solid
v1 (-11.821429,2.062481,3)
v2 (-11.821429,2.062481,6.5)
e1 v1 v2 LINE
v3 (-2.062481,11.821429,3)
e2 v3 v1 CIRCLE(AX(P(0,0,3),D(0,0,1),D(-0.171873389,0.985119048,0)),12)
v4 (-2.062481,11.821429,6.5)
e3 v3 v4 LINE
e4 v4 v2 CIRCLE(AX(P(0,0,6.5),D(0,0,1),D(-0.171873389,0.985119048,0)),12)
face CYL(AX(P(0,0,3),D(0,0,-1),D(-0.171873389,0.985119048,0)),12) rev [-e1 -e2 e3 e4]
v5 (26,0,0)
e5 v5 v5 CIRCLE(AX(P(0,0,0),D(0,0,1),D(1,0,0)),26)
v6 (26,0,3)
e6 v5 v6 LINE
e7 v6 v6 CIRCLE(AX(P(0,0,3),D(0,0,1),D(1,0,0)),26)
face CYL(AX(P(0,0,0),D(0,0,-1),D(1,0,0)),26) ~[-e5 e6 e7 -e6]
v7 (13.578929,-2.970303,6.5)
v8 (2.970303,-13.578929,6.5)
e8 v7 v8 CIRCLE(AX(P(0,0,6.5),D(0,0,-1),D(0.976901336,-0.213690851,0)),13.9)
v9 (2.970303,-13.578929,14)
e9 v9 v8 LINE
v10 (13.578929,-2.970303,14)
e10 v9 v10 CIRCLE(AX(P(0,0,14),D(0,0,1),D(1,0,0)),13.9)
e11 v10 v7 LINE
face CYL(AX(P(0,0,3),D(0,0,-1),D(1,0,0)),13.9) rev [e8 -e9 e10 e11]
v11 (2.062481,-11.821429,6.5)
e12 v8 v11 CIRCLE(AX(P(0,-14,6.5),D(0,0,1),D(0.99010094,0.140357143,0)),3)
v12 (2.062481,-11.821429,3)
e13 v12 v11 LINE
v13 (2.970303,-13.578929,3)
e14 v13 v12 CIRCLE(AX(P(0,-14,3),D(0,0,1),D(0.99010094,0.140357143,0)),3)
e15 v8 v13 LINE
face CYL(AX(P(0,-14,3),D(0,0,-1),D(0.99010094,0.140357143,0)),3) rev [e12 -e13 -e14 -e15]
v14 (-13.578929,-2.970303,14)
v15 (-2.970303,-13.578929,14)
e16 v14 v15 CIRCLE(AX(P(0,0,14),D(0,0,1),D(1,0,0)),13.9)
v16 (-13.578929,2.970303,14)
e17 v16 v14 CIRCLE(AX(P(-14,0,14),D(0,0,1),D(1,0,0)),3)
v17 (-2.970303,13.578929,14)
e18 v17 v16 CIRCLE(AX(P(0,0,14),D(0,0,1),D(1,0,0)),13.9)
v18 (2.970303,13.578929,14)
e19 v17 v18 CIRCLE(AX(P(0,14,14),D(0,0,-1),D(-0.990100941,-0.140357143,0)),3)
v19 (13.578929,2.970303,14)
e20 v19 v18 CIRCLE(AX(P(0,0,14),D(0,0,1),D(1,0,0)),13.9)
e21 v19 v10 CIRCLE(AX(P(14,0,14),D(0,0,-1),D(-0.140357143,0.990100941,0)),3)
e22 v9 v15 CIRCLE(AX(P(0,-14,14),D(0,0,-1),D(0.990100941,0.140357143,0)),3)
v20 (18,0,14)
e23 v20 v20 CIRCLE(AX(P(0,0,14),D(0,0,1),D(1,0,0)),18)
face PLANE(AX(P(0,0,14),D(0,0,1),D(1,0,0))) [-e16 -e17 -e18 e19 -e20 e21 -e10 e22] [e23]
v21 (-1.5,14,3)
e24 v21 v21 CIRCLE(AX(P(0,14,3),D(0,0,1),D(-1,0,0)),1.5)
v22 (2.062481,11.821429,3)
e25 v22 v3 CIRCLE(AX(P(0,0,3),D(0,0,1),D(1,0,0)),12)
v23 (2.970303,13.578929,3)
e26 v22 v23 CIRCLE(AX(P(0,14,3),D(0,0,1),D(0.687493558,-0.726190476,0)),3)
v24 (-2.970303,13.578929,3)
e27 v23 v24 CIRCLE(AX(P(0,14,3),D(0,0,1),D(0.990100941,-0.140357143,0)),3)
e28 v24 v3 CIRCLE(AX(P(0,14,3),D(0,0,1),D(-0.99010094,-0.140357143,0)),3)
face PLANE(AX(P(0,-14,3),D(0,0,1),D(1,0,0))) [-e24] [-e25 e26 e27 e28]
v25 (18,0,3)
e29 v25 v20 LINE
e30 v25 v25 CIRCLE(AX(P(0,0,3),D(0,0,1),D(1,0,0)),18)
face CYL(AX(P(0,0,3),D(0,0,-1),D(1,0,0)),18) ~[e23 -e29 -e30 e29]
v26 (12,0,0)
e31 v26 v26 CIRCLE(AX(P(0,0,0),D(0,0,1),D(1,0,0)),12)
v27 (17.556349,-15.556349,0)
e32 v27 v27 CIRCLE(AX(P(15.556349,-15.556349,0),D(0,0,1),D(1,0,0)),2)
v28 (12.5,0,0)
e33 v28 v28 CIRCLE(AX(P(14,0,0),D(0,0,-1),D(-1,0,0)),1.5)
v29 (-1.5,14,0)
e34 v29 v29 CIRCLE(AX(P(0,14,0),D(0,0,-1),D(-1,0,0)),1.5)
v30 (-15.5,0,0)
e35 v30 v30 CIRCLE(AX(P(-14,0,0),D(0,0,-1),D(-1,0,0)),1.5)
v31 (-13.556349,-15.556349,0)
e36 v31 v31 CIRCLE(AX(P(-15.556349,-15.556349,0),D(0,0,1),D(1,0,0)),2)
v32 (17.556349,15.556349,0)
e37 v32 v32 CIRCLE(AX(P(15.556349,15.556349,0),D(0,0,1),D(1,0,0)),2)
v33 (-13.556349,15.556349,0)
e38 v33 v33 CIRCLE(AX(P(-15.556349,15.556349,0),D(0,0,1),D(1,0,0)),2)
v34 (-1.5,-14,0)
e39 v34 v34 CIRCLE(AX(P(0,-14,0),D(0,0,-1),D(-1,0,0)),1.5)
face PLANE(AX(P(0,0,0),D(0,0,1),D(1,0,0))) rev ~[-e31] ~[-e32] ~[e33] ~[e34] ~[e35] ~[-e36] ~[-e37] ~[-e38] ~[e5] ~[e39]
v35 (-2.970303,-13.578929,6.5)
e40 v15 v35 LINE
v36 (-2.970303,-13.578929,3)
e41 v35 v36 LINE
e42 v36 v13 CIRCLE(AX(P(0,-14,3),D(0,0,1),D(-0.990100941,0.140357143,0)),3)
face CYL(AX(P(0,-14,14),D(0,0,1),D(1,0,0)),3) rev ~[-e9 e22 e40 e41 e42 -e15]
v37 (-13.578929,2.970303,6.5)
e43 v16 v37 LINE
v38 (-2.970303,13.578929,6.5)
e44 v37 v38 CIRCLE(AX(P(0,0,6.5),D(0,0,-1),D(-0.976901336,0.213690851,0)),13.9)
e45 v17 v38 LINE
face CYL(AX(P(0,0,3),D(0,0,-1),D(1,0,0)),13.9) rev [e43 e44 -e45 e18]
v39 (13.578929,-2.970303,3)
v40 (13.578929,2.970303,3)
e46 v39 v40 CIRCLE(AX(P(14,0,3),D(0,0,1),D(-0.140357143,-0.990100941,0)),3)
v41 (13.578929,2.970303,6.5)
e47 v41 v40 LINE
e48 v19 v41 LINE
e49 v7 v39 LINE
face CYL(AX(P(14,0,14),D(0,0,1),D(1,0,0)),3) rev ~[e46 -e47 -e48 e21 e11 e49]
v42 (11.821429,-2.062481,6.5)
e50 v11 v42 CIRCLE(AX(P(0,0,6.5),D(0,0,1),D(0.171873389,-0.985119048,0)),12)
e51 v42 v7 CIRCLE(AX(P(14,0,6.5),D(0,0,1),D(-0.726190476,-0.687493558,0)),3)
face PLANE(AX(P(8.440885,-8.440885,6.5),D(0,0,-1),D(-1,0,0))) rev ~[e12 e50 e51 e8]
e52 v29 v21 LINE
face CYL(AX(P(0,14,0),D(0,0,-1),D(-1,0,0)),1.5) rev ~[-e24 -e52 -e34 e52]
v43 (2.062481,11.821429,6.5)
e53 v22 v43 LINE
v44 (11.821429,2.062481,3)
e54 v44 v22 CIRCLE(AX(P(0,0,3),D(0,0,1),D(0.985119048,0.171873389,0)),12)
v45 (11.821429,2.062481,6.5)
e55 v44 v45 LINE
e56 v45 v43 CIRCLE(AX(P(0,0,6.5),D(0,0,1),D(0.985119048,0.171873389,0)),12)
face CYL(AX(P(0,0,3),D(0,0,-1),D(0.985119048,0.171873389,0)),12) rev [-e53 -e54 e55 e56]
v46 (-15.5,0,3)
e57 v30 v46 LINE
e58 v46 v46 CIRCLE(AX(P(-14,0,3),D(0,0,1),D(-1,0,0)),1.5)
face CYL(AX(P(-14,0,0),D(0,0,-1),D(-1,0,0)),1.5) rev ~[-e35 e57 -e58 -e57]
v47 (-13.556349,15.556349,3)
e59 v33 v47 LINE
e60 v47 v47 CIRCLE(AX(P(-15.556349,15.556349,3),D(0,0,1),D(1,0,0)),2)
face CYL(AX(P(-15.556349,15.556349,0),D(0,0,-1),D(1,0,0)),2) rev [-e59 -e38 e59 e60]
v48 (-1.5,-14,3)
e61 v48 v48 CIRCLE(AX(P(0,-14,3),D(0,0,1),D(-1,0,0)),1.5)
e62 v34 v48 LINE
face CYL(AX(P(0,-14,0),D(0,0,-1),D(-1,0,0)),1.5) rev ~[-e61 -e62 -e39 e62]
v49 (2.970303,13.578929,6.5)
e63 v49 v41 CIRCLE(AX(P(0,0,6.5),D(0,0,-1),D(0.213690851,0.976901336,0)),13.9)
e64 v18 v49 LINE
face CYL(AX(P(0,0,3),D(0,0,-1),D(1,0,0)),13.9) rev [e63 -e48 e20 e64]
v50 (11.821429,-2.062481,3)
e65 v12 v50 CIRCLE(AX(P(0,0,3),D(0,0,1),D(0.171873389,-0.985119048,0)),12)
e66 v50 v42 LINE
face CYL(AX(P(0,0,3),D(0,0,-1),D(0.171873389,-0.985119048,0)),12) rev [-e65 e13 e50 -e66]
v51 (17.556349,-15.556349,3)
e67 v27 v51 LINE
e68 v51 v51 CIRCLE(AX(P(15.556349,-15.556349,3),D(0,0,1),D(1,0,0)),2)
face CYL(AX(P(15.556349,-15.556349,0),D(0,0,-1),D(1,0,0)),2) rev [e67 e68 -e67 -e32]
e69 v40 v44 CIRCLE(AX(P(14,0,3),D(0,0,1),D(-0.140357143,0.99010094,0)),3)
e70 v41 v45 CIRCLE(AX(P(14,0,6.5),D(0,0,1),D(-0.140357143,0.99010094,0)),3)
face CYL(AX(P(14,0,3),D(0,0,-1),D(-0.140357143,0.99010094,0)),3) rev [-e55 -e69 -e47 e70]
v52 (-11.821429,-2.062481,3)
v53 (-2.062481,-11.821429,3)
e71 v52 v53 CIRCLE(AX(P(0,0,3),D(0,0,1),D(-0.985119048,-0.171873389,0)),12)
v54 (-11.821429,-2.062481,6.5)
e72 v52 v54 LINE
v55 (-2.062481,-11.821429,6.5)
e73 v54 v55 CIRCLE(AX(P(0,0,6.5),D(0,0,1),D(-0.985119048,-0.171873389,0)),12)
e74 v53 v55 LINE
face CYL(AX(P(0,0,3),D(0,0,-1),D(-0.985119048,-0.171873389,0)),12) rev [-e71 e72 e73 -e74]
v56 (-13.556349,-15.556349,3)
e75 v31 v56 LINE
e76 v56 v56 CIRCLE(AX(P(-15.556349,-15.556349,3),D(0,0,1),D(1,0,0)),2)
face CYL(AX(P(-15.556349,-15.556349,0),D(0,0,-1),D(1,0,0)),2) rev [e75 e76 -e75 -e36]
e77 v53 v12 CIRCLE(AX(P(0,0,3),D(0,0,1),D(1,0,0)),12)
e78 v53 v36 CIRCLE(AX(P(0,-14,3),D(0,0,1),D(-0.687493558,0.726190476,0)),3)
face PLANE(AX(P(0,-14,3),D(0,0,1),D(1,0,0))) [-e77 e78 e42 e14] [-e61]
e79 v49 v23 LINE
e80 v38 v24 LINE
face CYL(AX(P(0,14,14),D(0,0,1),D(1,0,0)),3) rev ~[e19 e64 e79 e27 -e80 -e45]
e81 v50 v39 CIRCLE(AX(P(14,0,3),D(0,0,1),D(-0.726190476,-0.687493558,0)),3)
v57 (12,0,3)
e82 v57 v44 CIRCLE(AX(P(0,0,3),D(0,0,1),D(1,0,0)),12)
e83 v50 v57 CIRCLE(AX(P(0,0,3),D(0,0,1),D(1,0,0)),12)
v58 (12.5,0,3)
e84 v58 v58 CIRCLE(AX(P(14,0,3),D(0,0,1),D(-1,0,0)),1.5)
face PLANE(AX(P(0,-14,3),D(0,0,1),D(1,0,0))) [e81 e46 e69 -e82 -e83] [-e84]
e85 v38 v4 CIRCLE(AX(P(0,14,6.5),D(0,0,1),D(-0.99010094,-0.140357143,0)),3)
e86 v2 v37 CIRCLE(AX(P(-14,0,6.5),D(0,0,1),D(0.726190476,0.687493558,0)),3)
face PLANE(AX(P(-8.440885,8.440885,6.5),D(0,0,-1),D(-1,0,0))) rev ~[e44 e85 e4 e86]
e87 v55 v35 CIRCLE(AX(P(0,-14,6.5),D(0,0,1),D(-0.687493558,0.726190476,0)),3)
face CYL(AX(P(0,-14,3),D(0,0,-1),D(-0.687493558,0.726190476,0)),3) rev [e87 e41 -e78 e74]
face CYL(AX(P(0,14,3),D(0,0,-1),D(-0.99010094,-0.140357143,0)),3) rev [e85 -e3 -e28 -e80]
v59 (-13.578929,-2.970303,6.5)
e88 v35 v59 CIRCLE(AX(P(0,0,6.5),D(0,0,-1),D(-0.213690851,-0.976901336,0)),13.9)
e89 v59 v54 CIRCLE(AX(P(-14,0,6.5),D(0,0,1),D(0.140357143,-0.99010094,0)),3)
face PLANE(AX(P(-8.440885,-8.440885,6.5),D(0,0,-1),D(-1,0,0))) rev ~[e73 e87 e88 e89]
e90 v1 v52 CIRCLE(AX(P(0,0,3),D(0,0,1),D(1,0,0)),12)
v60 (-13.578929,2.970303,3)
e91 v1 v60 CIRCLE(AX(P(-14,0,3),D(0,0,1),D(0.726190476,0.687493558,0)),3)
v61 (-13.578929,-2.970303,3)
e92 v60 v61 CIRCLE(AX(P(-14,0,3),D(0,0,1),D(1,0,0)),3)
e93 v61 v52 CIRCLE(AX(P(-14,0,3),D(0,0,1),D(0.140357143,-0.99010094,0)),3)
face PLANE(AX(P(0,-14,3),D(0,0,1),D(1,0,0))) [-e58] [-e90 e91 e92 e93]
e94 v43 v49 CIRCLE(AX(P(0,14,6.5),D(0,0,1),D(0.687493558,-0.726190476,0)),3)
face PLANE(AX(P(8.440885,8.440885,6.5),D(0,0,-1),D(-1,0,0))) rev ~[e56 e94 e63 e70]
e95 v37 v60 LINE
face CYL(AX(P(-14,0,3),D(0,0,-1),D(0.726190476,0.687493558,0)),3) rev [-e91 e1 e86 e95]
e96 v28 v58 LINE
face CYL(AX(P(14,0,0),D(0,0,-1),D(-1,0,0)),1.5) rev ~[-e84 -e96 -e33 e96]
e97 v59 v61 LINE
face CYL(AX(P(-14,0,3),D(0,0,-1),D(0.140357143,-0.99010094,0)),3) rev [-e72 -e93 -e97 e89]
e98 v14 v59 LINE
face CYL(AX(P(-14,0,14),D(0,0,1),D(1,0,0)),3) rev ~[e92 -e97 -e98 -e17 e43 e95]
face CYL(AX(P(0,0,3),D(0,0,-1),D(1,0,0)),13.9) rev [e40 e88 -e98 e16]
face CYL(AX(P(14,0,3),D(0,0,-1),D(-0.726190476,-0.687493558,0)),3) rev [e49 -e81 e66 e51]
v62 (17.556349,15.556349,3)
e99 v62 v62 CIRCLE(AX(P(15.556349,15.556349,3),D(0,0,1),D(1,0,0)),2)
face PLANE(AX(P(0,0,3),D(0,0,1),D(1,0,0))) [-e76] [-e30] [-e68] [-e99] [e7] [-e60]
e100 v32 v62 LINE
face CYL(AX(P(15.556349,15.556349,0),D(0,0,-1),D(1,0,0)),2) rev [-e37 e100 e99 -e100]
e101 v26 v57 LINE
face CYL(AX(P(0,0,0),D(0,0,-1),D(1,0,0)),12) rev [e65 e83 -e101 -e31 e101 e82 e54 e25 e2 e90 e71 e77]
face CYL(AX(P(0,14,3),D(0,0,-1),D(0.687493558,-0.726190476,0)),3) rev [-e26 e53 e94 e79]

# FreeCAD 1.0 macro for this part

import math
import FreeCAD as App
import Part
import Sketcher

V = App.Vector

doc = App.newDocument("Part")
body = doc.addObject("PartDesign::Body", "Body")

# Sketch on XY plane
sketch1 = body.newObject("Sketcher::SketchObject", "Sketch")
sketch1.AttachmentSupport = (doc.getObject("XY_Plane"), [""])
sketch1.MapMode = "FlatFace"
sketch1.addGeometry(Part.Circle(V(0, 0, 0), V(0, 0, 1), 26), False)
sketch1.addGeometry(Part.Circle(V(-15.6, -15.6, 0), V(0, 0, 1), 2), False)
sketch1.addGeometry(Part.Circle(V(15.6, -15.6, 0), V(0, 0, 1), 2), False)
sketch1.addGeometry(Part.Circle(V(-15.6, 15.6, 0), V(0, 0, 1), 2), False)
sketch1.addGeometry(Part.Circle(V(0, 0, 0), V(0, 0, 1), 12), False)
sketch1.addGeometry(Part.Circle(V(15.6, 15.6, 0), V(0, 0, 1), 2), False)
sketch1.addConstraint(Sketcher.Constraint("Coincident", 0, 3, -1, 1))
sketch1.addConstraint(Sketcher.Constraint("Coincident", 4, 3, -1, 1))
sketch1.addConstraint(Sketcher.Constraint("Equal", 1, 2))
sketch1.addConstraint(Sketcher.Constraint("Equal", 2, 3))
sketch1.addConstraint(Sketcher.Constraint("Equal", 3, 5))
sketch1.addConstraint(Sketcher.Constraint("Symmetric", 2, 3, 3, 3, -1, 1))
sketch1.addConstraint(Sketcher.Constraint("Symmetric", 1, 3, 5, 3, -1, 1))
sketch1.addConstraint(Sketcher.Constraint("Symmetric", 1, 3, 2, 3, -2))
sketch1.addConstraint(Sketcher.Constraint("Diameter", 0, 52.0))
sketch1.addConstraint(Sketcher.Constraint("Diameter", 1, 4.0))
sketch1.addConstraint(Sketcher.Constraint("Diameter", 4, 24.0))
sketch1.addConstraint(Sketcher.Constraint("DistanceX", 1, 3, 2, 3, 31.112698))
sketch1.addConstraint(Sketcher.Constraint("DistanceY", 1, 3, 3, 3, 31.112698))
pad1 = body.newObject("PartDesign::Pad", "Pad")
pad1.Profile = sketch1
pad1.Length = 3

# Sketch on XY plane
sketch2 = body.newObject("Sketcher::SketchObject", "Sketch001")
sketch2.AttachmentSupport = (doc.getObject("XY_Plane"), [""])
sketch2.MapMode = "FlatFace"
sketch2.AttachmentOffset = App.Placement(V(0, 0, 3), App.Rotation())
sketch2.addGeometry(Part.Circle(V(0, 0, 0), V(0, 0, 1), 18), False)
sketch2.addGeometry(Part.Circle(V(0, 0, 0), V(0, 0, 1), 14), False)
sketch2.addConstraint(Sketcher.Constraint("Coincident", 0, 3, -1, 1))
sketch2.addConstraint(Sketcher.Constraint("Coincident", 1, 3, -1, 1))
sketch2.addConstraint(Sketcher.Constraint("Diameter", 0, 36.0))
sketch2.addConstraint(Sketcher.Constraint("Diameter", 1, 27.8))
pad2 = body.newObject("PartDesign::Pad", "Pad001")
pad2.Profile = sketch2
pad2.Length = 11

# Sketch on XY plane
sketch3 = body.newObject("Sketcher::SketchObject", "Sketch002")
sketch3.AttachmentSupport = (doc.getObject("XY_Plane"), [""])
sketch3.MapMode = "FlatFace"
sketch3.addGeometry(Part.Circle(V(0, 14, 0), V(0, 0, 1), 1.5), False)
sketch3.addGeometry(Part.Circle(V(-14, 0, 0), V(0, 0, 1), 1.5), False)
sketch3.addGeometry(Part.Circle(V(0, -14, 0), V(0, 0, 1), 1.5), False)
sketch3.addGeometry(Part.Circle(V(14, 0, 0), V(0, 0, 1), 1.5), False)
sketch3.addConstraint(Sketcher.Constraint("Equal", 0, 1))
sketch3.addConstraint(Sketcher.Constraint("Equal", 1, 2))
sketch3.addConstraint(Sketcher.Constraint("Equal", 2, 3))
sketch3.addConstraint(Sketcher.Constraint("Symmetric", 0, 3, 2, 3, -1, 1))
sketch3.addConstraint(Sketcher.Constraint("Symmetric", 1, 3, 3, 3, -1, 1))
sketch3.addConstraint(Sketcher.Constraint("PointOnObject", 0, 3, -2))
sketch3.addConstraint(Sketcher.Constraint("PointOnObject", 1, 3, -1))
sketch3.addConstraint(Sketcher.Constraint("Diameter", 0, 3.0))
sketch3.addConstraint(Sketcher.Constraint("DistanceY", -1, 1, 0, 3, 14.0))
sketch3.addConstraint(Sketcher.Constraint("DistanceX", 1, 3, -1, 1, 14.0))
pocket1 = body.newObject("PartDesign::Pocket", "Pocket")
pocket1.Profile = sketch3
pocket1.Type = "ThroughAll"
pocket1.Reversed = True

# Sketch on XY plane
sketch4 = body.newObject("Sketcher::SketchObject", "Sketch003")
sketch4.AttachmentSupport = (doc.getObject("XY_Plane"), [""])
sketch4.MapMode = "FlatFace"
sketch4.AttachmentOffset = App.Placement(V(0, 0, 14), App.Rotation())
sketch4.addGeometry(Part.Circle(V(0, 14, 0), V(0, 0, 1), 3), False)
sketch4.addGeometry(Part.Circle(V(14, 0, 0), V(0, 0, 1), 3), False)
sketch4.addGeometry(Part.Circle(V(0, -14, 0), V(0, 0, 1), 3), False)
sketch4.addGeometry(Part.Circle(V(-14, 0, 0), V(0, 0, 1), 3), False)
sketch4.addConstraint(Sketcher.Constraint("Equal", 0, 1))
sketch4.addConstraint(Sketcher.Constraint("Equal", 1, 2))
sketch4.addConstraint(Sketcher.Constraint("Equal", 2, 3))
sketch4.addConstraint(Sketcher.Constraint("Symmetric", 0, 3, 2, 3, -1, 1))
sketch4.addConstraint(Sketcher.Constraint("Symmetric", 1, 3, 3, 3, -1, 1))
sketch4.addConstraint(Sketcher.Constraint("PointOnObject", 0, 3, -2))
sketch4.addConstraint(Sketcher.Constraint("PointOnObject", 1, 3, -1))
sketch4.addConstraint(Sketcher.Constraint("Diameter", 0, 6.0))
sketch4.addConstraint(Sketcher.Constraint("DistanceY", -1, 1, 0, 3, 14.0))
sketch4.addConstraint(Sketcher.Constraint("DistanceX", -1, 1, 1, 3, 14.0))
pocket2 = body.newObject("PartDesign::Pocket", "Pocket001")
pocket2.Profile = sketch4
pocket2.Length = 11

# Sketch on XY plane
sketch5 = body.newObject("Sketcher::SketchObject", "Sketch004")
sketch5.AttachmentSupport = (doc.getObject("XY_Plane"), [""])
sketch5.MapMode = "FlatFace"
sketch5.AttachmentOffset = App.Placement(V(0, 0, 3), App.Rotation())
sketch5.addGeometry(Part.ArcOfCircle(Part.Circle(V(-14, 0, 0), V(0, 0, 1), 3), math.radians(-82), math.radians(-43)), False)
sketch5.addGeometry(Part.ArcOfCircle(Part.Circle(V(0, 0, 0), V(0, 0, 1), 13.9), math.radians(-168), math.radians(-102)), False)
sketch5.addGeometry(Part.ArcOfCircle(Part.Circle(V(0, -14, 0), V(0, 0, 1), 3), math.radians(133), math.radians(172)), False)
sketch5.addGeometry(Part.ArcOfCircle(Part.Circle(V(0, 0, 0), V(0, 0, 1), 12), math.radians(-170), math.radians(-100)), False)
sketch5.addGeometry(Part.ArcOfCircle(Part.Circle(V(0, 14, 0), V(0, 0, 1), 3), math.radians(-172), math.radians(-133)), False)
sketch5.addGeometry(Part.ArcOfCircle(Part.Circle(V(0, 0, 0), V(0, 0, 1), 13.9), math.radians(102), math.radians(168)), False)
sketch5.addGeometry(Part.ArcOfCircle(Part.Circle(V(-14, 0, 0), V(0, 0, 1), 3), math.radians(43), math.radians(82)), False)
sketch5.addGeometry(Part.ArcOfCircle(Part.Circle(V(0, 0, 0), V(0, 0, 1), 12), math.radians(100), math.radians(170)), False)
sketch5.addGeometry(Part.ArcOfCircle(Part.Circle(V(14, 0, 0), V(0, 0, 1), 3), math.radians(98), math.radians(137)), False)
sketch5.addGeometry(Part.ArcOfCircle(Part.Circle(V(0, 0, 0), V(0, 0, 1), 13.9), math.radians(12), math.radians(78)), False)
sketch5.addGeometry(Part.ArcOfCircle(Part.Circle(V(0, 14, 0), V(0, 0, 1), 3), math.radians(-47), math.radians(-8)), False)
sketch5.addGeometry(Part.ArcOfCircle(Part.Circle(V(0, 0, 0), V(0, 0, 1), 12), math.radians(10), math.radians(80)), False)
sketch5.addGeometry(Part.ArcOfCircle(Part.Circle(V(0, -14, 0), V(0, 0, 1), 3), math.radians(8), math.radians(47)), False)
sketch5.addGeometry(Part.ArcOfCircle(Part.Circle(V(0, 0, 0), V(0, 0, 1), 13.9), math.radians(-78), math.radians(-12)), False)
sketch5.addGeometry(Part.ArcOfCircle(Part.Circle(V(14, 0, 0), V(0, 0, 1), 3), math.radians(-137), math.radians(-98)), False)
sketch5.addGeometry(Part.ArcOfCircle(Part.Circle(V(0, 0, 0), V(0, 0, 1), 12), math.radians(-80), math.radians(-10)), False)
sketch5.addConstraint(Sketcher.Constraint("Coincident", 0, 1, 1, 1))
sketch5.addConstraint(Sketcher.Constraint("Coincident", 1, 2, 2, 2))
sketch5.addConstraint(Sketcher.Constraint("Coincident", 2, 1, 3, 2))
sketch5.addConstraint(Sketcher.Constraint("Coincident", 3, 1, 0, 2))
sketch5.addConstraint(Sketcher.Constraint("Coincident", 4, 1, 5, 1))
sketch5.addConstraint(Sketcher.Constraint("Coincident", 5, 2, 6, 2))
sketch5.addConstraint(Sketcher.Constraint("Coincident", 6, 1, 7, 2))
sketch5.addConstraint(Sketcher.Constraint("Coincident", 7, 1, 4, 2))
sketch5.addConstraint(Sketcher.Constraint("Coincident", 8, 1, 9, 1))
sketch5.addConstraint(Sketcher.Constraint("Coincident", 9, 2, 10, 2))
sketch5.addConstraint(Sketcher.Constraint("Coincident", 10, 1, 11, 2))
sketch5.addConstraint(Sketcher.Constraint("Coincident", 11, 1, 8, 2))
sketch5.addConstraint(Sketcher.Constraint("Coincident", 12, 1, 13, 1))
sketch5.addConstraint(Sketcher.Constraint("Coincident", 13, 2, 14, 2))
sketch5.addConstraint(Sketcher.Constraint("Coincident", 14, 1, 15, 2))
sketch5.addConstraint(Sketcher.Constraint("Coincident", 15, 1, 12, 2))
sketch5.addConstraint(Sketcher.Constraint("Coincident", 1, 3, -1, 1))
sketch5.addConstraint(Sketcher.Constraint("Coincident", 3, 3, -1, 1))
sketch5.addConstraint(Sketcher.Constraint("Coincident", 5, 3, -1, 1))
sketch5.addConstraint(Sketcher.Constraint("Coincident", 7, 3, -1, 1))
sketch5.addConstraint(Sketcher.Constraint("Coincident", 9, 3, -1, 1))
sketch5.addConstraint(Sketcher.Constraint("Coincident", 11, 3, -1, 1))
sketch5.addConstraint(Sketcher.Constraint("Coincident", 13, 3, -1, 1))
sketch5.addConstraint(Sketcher.Constraint("Coincident", 15, 3, -1, 1))
sketch5.addConstraint(Sketcher.Constraint("Coincident", 6, 3, 0, 3))
sketch5.addConstraint(Sketcher.Constraint("Coincident", 10, 3, 4, 3))
sketch5.addConstraint(Sketcher.Constraint("Coincident", 12, 3, 2, 3))
sketch5.addConstraint(Sketcher.Constraint("Coincident", 14, 3, 8, 3))
sketch5.addConstraint(Sketcher.Constraint("Equal", 0, 2))
sketch5.addConstraint(Sketcher.Constraint("Equal", 2, 4))
sketch5.addConstraint(Sketcher.Constraint("Equal", 1, 5))
sketch5.addConstraint(Sketcher.Constraint("Equal", 4, 6))
sketch5.addConstraint(Sketcher.Constraint("Equal", 3, 7))
sketch5.addConstraint(Sketcher.Constraint("Equal", 6, 8))
sketch5.addConstraint(Sketcher.Constraint("Equal", 5, 9))
sketch5.addConstraint(Sketcher.Constraint("Equal", 8, 10))
sketch5.addConstraint(Sketcher.Constraint("Equal", 7, 11))
sketch5.addConstraint(Sketcher.Constraint("Equal", 10, 12))
sketch5.addConstraint(Sketcher.Constraint("Equal", 9, 13))
sketch5.addConstraint(Sketcher.Constraint("Equal", 12, 14))
sketch5.addConstraint(Sketcher.Constraint("Equal", 11, 15))
sketch5.addConstraint(Sketcher.Constraint("Symmetric", 2, 3, 4, 3, -1, 1))
sketch5.addConstraint(Sketcher.Constraint("Symmetric", 0, 3, 8, 3, -1, 1))
sketch5.addConstraint(Sketcher.Constraint("PointOnObject", 0, 3, -1))
sketch5.addConstraint(Sketcher.Constraint("PointOnObject", 2, 3, -2))
sketch5.addConstraint(Sketcher.Constraint("Radius", 0, 3.0))
sketch5.addConstraint(Sketcher.Constraint("Radius", 3, 12.0))
sketch5.addConstraint(Sketcher.Constraint("Radius", 1, 13.9))
sketch5.addConstraint(Sketcher.Constraint("DistanceX", 0, 3, -1, 1, 14.0))
sketch5.addConstraint(Sketcher.Constraint("DistanceY", 2, 3, -1, 1, 14.0))
pad3 = body.newObject("PartDesign::Pad", "Pad002")
pad3.Profile = sketch5
pad3.Length = 3.5

doc.recompute()
